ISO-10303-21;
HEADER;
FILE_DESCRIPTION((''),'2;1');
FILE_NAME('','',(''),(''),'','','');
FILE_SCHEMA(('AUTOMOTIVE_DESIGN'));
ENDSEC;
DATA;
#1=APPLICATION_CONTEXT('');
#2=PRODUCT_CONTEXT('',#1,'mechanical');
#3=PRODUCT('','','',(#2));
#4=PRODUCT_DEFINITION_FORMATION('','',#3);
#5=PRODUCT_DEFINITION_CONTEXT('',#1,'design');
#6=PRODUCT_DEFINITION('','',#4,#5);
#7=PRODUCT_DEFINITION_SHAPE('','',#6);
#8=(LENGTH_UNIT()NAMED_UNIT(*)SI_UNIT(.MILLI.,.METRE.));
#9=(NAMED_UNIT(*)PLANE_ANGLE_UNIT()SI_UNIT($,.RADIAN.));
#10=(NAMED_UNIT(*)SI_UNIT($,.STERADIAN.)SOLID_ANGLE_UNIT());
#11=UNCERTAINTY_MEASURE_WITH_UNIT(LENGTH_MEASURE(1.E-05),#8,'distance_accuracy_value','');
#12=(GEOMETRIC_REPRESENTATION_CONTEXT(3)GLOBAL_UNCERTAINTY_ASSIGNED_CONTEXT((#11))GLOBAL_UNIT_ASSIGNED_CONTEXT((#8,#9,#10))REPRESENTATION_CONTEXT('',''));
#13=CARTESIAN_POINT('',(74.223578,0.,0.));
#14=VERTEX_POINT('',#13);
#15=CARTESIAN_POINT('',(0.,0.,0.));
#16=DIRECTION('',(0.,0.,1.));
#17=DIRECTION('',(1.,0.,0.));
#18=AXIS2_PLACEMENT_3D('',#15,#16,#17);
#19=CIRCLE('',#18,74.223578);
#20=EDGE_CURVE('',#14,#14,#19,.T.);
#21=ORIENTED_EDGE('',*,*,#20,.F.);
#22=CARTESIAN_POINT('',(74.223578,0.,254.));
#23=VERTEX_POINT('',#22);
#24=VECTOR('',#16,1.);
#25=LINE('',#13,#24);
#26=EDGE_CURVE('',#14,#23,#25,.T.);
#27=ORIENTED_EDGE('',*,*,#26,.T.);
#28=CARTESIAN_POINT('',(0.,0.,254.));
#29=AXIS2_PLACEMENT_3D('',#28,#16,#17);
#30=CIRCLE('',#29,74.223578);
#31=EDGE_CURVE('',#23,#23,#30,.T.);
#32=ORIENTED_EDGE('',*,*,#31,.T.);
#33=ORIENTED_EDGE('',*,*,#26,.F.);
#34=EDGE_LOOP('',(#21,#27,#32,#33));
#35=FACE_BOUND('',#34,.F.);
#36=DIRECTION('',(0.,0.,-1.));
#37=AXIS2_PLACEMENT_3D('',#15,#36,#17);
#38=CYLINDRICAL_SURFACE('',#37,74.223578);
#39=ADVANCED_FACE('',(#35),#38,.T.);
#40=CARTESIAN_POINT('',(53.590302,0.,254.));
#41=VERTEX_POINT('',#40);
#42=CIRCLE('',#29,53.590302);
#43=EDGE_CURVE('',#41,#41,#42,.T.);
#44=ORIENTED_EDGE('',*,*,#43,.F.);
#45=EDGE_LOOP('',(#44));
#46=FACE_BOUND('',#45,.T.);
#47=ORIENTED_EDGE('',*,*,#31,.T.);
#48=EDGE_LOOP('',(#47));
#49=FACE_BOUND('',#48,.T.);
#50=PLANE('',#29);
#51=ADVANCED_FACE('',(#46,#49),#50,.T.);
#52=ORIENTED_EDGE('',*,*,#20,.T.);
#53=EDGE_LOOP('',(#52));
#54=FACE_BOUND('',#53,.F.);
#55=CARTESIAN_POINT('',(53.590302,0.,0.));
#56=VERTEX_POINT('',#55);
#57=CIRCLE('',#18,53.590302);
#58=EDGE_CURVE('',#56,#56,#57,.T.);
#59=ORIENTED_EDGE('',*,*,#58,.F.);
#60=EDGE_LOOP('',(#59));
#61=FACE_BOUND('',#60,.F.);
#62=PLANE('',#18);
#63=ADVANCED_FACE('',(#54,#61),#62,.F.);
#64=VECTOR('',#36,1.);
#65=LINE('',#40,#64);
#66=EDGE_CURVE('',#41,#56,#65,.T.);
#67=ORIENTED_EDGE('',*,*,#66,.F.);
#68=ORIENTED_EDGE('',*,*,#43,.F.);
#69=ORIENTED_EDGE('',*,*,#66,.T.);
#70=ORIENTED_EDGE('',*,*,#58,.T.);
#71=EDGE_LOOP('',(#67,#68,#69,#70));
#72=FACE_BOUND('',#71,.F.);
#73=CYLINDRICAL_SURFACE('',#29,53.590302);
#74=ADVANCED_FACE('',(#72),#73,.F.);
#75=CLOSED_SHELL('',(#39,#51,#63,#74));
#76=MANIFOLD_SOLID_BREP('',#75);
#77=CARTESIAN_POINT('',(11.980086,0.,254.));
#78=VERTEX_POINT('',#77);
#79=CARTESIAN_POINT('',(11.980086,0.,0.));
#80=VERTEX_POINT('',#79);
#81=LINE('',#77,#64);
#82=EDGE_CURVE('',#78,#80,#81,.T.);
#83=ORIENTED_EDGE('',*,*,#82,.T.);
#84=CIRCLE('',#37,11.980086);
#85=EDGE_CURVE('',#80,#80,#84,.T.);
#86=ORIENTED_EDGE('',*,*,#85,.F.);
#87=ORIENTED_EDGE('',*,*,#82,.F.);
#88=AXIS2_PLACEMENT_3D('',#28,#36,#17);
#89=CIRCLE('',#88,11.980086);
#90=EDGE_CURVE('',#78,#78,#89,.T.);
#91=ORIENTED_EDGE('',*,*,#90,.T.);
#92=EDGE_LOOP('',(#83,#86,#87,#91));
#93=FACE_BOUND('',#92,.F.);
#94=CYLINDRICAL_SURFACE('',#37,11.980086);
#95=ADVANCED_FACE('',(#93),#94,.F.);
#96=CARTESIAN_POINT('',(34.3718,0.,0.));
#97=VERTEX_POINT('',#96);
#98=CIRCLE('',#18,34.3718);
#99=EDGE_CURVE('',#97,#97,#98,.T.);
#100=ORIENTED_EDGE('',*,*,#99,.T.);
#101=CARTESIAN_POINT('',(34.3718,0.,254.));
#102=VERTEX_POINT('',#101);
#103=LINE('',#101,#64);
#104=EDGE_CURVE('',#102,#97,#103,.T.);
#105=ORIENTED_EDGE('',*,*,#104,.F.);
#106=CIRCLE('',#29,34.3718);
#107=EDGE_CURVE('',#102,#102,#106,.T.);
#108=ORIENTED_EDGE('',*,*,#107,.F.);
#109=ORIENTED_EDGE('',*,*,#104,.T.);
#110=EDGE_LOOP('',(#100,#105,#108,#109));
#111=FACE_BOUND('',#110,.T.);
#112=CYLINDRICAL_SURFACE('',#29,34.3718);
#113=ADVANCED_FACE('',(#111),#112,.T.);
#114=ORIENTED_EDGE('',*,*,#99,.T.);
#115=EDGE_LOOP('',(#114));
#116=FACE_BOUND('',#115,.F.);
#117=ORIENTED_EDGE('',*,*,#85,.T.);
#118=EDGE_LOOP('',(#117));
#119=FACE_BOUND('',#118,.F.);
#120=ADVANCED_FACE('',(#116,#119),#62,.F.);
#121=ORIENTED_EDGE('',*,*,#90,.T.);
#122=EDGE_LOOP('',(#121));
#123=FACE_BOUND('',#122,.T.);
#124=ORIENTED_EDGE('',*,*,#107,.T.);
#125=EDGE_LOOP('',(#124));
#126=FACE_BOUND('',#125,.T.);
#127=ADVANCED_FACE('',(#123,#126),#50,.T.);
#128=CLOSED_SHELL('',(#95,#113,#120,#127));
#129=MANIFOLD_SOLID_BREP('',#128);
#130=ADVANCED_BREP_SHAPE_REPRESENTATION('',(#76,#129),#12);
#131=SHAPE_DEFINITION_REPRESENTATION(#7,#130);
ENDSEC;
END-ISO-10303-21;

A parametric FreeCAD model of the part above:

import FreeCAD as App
import Part
import Sketcher
Q = App.Units.Quantity

doc = App.newDocument("Part")
body = doc.addObject("PartDesign::Body", "Body")
body.AllowCompound = True

# Sketch on XY plane
sketch1 = body.newObject("Sketcher::SketchObject", "Sketch")
sketch1.AttachmentSupport = (doc.getObject("XY_Plane"), [""])
sketch1.MapMode = "FlatFace"
sketch1.addGeometry(Part.Circle(App.Vector(0, 0, 0), App.Vector(0, 0, 1), 74.223578), False)
sketch1.addConstraint(Sketcher.Constraint("Coincident", 0, 3, -1, 1))
sketch1.addConstraint(Sketcher.Constraint("Diameter", 0, Q("148.447156 mm")))
pad1 = body.newObject("PartDesign::Pad", "Pad")
pad1.Profile = sketch1
pad1.Length = Q("10 in")

# Sketch on XY plane
sketch2 = body.newObject("Sketcher::SketchObject", "Sketch001")
sketch2.AttachmentSupport = (doc.getObject("XY_Plane"), [""])
sketch2.MapMode = "FlatFace"
sketch2.addGeometry(Part.Circle(App.Vector(0, 0, 0), App.Vector(0, 0, 1), 11.980086), False)
sketch2.addConstraint(Sketcher.Constraint("Coincident", 0, 3, -1, 1))
sketch2.addConstraint(Sketcher.Constraint("Diameter", 0, Q("23.960172 mm")))
pocket1 = body.newObject("PartDesign::Pocket", "Pocket")
pocket1.Profile = sketch2
pocket1.Length = Q("1 in")
pocket1.Reversed = True

# Sketch on XY plane
sketch3 = body.newObject("Sketcher::SketchObject", "Sketch002")
sketch3.AttachmentSupport = (doc.getObject("XY_Plane"), [""])
sketch3.MapMode = "FlatFace"
sketch3.AttachmentOffset = App.Placement(App.Vector(0, 0, 1 * 25.4), App.Rotation())
sketch3.addGeometry(Part.Circle(App.Vector(0, 0, 0), App.Vector(0, 0, 1), 11.980086), False)
sketch3.addConstraint(Sketcher.Constraint("Coincident", 0, 3, -1, 1))
sketch3.addConstraint(Sketcher.Constraint("Diameter", 0, Q("23.960172 mm")))
pocket2 = body.newObject("PartDesign::Pocket", "Pocket001")
pocket2.Profile = sketch3
pocket2.Length = Q("9 in")
pocket2.Reversed = True

# Sketch on XY plane
sketch4 = body.newObject("Sketcher::SketchObject", "Sketch003")
sketch4.AttachmentSupport = (doc.getObject("XY_Plane"), [""])
sketch4.MapMode = "FlatFace"
sketch4.AttachmentOffset = App.Placement(App.Vector(0, 0, 10 * 25.4), App.Rotation())
sketch4.addGeometry(Part.Circle(App.Vector(0, 0, 0), App.Vector(0, 0, 1), 53.590302), False)
sketch4.addGeometry(Part.Circle(App.Vector(0, 0, 0), App.Vector(0, 0, 1), 34.3718), False)
sketch4.addConstraint(Sketcher.Constraint("Coincident", 0, 3, -1, 1))
sketch4.addConstraint(Sketcher.Constraint("Coincident", 1, 3, -1, 1))
sketch4.addConstraint(Sketcher.Constraint("Diameter", 1, Q("68.7436 mm")))
sketch4.addConstraint(Sketcher.Constraint("Diameter", 0, Q("107.180604 mm")))
pocket3 = body.newObject("PartDesign::Pocket", "Pocket002")
pocket3.Profile = sketch4
pocket3.Length = Q("10 in")

doc.recompute()
